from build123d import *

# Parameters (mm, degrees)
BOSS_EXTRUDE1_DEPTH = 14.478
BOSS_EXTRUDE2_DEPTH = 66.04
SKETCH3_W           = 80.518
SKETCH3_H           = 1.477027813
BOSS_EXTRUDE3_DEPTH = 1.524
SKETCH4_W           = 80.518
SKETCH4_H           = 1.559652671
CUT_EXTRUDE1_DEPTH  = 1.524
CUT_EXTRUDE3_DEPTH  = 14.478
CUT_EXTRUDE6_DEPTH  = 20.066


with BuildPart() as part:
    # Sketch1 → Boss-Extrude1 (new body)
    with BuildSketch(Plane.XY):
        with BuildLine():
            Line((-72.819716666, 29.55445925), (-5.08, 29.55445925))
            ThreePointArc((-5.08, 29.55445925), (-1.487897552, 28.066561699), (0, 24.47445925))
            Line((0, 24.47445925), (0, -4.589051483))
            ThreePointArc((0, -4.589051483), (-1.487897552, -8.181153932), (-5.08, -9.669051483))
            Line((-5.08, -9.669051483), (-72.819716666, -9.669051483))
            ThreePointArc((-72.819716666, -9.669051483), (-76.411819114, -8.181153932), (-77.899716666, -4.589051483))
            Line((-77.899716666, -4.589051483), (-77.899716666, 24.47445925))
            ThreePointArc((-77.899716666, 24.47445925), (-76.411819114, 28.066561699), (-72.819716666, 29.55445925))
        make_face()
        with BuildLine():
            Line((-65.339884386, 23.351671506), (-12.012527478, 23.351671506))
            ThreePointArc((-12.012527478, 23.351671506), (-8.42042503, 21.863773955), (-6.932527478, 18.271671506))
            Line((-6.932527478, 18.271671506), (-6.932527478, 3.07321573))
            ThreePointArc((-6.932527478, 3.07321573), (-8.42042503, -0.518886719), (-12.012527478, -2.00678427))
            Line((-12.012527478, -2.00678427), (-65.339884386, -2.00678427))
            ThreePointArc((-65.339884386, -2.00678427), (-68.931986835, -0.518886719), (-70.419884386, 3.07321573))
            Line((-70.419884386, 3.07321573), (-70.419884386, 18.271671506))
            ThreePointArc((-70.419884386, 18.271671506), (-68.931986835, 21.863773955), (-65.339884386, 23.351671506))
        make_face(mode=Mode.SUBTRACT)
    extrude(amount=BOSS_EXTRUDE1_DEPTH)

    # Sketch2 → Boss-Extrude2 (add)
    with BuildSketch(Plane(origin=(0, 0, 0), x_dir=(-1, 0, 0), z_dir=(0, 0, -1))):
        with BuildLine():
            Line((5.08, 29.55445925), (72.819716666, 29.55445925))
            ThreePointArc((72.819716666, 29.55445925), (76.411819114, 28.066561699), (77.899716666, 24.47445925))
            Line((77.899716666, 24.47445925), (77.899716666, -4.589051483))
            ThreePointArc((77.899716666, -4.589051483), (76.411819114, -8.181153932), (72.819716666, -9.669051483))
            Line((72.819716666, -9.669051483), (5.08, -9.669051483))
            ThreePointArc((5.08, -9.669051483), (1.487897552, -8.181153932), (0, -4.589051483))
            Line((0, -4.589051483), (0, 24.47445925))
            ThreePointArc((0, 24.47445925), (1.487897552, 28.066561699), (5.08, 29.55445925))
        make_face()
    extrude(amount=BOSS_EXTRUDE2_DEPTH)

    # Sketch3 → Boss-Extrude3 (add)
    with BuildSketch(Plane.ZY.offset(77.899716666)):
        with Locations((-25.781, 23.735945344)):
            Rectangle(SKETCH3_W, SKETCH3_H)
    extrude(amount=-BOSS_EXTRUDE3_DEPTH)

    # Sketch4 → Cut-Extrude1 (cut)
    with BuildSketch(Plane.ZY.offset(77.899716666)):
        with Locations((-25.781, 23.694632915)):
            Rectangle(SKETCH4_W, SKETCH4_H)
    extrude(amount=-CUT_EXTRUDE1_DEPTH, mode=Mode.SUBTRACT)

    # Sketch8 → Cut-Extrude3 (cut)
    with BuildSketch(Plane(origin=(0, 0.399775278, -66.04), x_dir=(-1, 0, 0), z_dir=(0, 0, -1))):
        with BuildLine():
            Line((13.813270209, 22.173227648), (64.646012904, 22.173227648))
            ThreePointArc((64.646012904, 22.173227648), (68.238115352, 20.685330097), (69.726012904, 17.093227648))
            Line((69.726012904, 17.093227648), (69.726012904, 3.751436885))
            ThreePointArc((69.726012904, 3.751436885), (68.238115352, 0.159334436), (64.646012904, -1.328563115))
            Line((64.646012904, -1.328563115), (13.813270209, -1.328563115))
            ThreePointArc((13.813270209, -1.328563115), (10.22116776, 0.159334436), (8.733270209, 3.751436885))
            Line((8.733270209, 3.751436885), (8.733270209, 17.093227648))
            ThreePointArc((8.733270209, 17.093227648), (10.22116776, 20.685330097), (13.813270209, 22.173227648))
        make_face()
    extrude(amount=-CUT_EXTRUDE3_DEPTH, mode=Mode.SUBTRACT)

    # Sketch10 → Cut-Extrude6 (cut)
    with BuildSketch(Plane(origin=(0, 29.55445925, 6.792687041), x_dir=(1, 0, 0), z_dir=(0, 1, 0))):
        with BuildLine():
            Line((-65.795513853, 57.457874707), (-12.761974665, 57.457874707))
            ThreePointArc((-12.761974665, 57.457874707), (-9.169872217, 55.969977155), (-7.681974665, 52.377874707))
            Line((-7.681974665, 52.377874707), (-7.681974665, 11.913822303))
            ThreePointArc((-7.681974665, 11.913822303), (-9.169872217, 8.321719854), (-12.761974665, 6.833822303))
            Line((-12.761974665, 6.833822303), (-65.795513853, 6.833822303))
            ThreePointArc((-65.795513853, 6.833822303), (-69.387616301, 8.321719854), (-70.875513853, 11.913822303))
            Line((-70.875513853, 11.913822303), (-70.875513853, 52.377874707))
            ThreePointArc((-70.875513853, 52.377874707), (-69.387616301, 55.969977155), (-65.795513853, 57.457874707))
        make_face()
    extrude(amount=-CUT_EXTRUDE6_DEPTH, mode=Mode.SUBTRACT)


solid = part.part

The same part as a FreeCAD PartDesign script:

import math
import FreeCAD as App
import Part
import Sketcher
Q = App.Units.Quantity


def add_polygon(sketch, points):
    """Adds a closed chain of lines whose ends are joined by coincident constraints."""
    first, n = sketch.GeometryCount, len(points)
    for a, b in zip(points, points[1:] + points[:1]):
        sketch.addGeometry(Part.LineSegment(App.Vector(*a, 0), App.Vector(*b, 0)), False)
    for i in range(n):
        sketch.addConstraint(Sketcher.Constraint("Coincident", first + i, 2, first + (i + 1) % n, 1))

doc = App.newDocument("Part")
params = doc.addObject("Spreadsheet::Sheet", "Params")
for row, (alias, value) in enumerate([
    ("sketch1_radius", "0.2 in"),
    ("pad1_length", "0.57 in"),
    ("sketch2_radius", "0.2 in"),
    ("pad2_length", "2.6 in"),
    ("sketch3_height", "3.17 in"),
    ("pad3_length", "0.06 in"),
    ("sketch4_height", "3.17 in"),
    ("pocket1_length", "0.06 in"),
    ("sketch5_radius", "0.2 in"),
    ("pocket2_length", "0.57 in"),
    ("sketch6_radius", "0.2 in"),
    ("pocket3_length", "0.79 in"),
], start=1):
    params.set(f"A{row}", alias)
    params.set(f"B{row}", "=" + value)
    params.setAlias(f"B{row}", alias)

body = doc.addObject("PartDesign::Body", "Body")

sketch1 = doc.addObject("Sketcher::SketchObject", "Sketch")
body.addObject(sketch1)
sketch1.AttachmentSupport = (doc.XY_Plane, [""])
sketch1.MapMode = "FlatFace"
sketch1.addGeometry(Part.LineSegment(App.Vector(-5.08, 29.554459, 0), App.Vector(-72.819717, 29.554459, 0)), False)
sketch1.addGeometry(Part.ArcOfCircle(Part.Circle(App.Vector(-72.819717, 24.474459, 0), App.Vector(0, 0, 1), 5.08), math.radians(90), math.radians(180)), False)
sketch1.addGeometry(Part.LineSegment(App.Vector(-77.899717, 24.474459, 0), App.Vector(-77.899717, -4.589051, 0)), False)
sketch1.addGeometry(Part.ArcOfCircle(Part.Circle(App.Vector(-72.819717, -4.589051, 0), App.Vector(0, 0, 1), 5.08), math.radians(180), math.radians(270)), False)
sketch1.addGeometry(Part.LineSegment(App.Vector(-72.819717, -9.669051, 0), App.Vector(-5.08, -9.669051, 0)), False)
sketch1.addGeometry(Part.ArcOfCircle(Part.Circle(App.Vector(-5.08, -4.589051, 0), App.Vector(0, 0, 1), 5.08), math.radians(-90), math.radians(0)), False)
sketch1.addGeometry(Part.LineSegment(App.Vector(0, -4.589051, 0), App.Vector(0, 24.474459, 0)), False)
sketch1.addGeometry(Part.ArcOfCircle(Part.Circle(App.Vector(-5.08, 24.474459, 0), App.Vector(0, 0, 1), 5.08), math.radians(0), math.radians(90)), False)
sketch1.addGeometry(Part.LineSegment(App.Vector(-65.339884, 23.351672, 0), App.Vector(-12.012527, 23.351672, 0)), False)
sketch1.addGeometry(Part.ArcOfCircle(Part.Circle(App.Vector(-12.012527, 18.271672, 0), App.Vector(0, 0, 1), 5.08), math.radians(0), math.radians(90)), False)
sketch1.addGeometry(Part.LineSegment(App.Vector(-6.932527, 18.271672, 0), App.Vector(-6.932527, 3.073216, 0)), False)
sketch1.addGeometry(Part.ArcOfCircle(Part.Circle(App.Vector(-12.012527, 3.073216, 0), App.Vector(0, 0, 1), 5.08), math.radians(-90), math.radians(0)), False)
sketch1.addGeometry(Part.LineSegment(App.Vector(-12.012527, -2.006784, 0), App.Vector(-65.339884, -2.006784, 0)), False)
sketch1.addGeometry(Part.ArcOfCircle(Part.Circle(App.Vector(-65.339884, 3.073216, 0), App.Vector(0, 0, 1), 5.08), math.radians(180), math.radians(270)), False)
sketch1.addGeometry(Part.LineSegment(App.Vector(-70.419884, 3.073216, 0), App.Vector(-70.419884, 18.271672, 0)), False)
sketch1.addGeometry(Part.ArcOfCircle(Part.Circle(App.Vector(-65.339884, 18.271672, 0), App.Vector(0, 0, 1), 5.08), math.radians(90), math.radians(180)), False)
sketch1.addConstraint(Sketcher.Constraint("Tangent", 0, 2, 1, 1))
sketch1.addConstraint(Sketcher.Constraint("Tangent", 1, 2, 2, 1))
sketch1.addConstraint(Sketcher.Constraint("Tangent", 2, 2, 3, 1))
sketch1.addConstraint(Sketcher.Constraint("Tangent", 3, 2, 4, 1))
sketch1.addConstraint(Sketcher.Constraint("Tangent", 4, 2, 5, 1))
sketch1.addConstraint(Sketcher.Constraint("Tangent", 5, 2, 6, 1))
sketch1.addConstraint(Sketcher.Constraint("Tangent", 6, 2, 7, 1))
sketch1.addConstraint(Sketcher.Constraint("Tangent", 7, 2, 0, 1))
sketch1.addConstraint(Sketcher.Constraint("Tangent", 8, 2, 9, 2))
sketch1.addConstraint(Sketcher.Constraint("Tangent", 9, 1, 10, 1))
sketch1.addConstraint(Sketcher.Constraint("Tangent", 10, 2, 11, 2))
sketch1.addConstraint(Sketcher.Constraint("Tangent", 11, 1, 12, 1))
sketch1.addConstraint(Sketcher.Constraint("Tangent", 12, 2, 13, 2))
sketch1.addConstraint(Sketcher.Constraint("Tangent", 13, 1, 14, 1))
sketch1.addConstraint(Sketcher.Constraint("Tangent", 14, 2, 15, 2))
sketch1.addConstraint(Sketcher.Constraint("Tangent", 15, 1, 8, 1))
sketch1.addConstraint(Sketcher.Constraint("Horizontal", 0))
sketch1.addConstraint(Sketcher.Constraint("Vertical", 2))
sketch1.addConstraint(Sketcher.Constraint("Horizontal", 4))
sketch1.addConstraint(Sketcher.Constraint("Vertical", 6))
sketch1.addConstraint(Sketcher.Constraint("Horizontal", 8))
sketch1.addConstraint(Sketcher.Constraint("Vertical", 10))
sketch1.addConstraint(Sketcher.Constraint("Horizontal", 12))
sketch1.addConstraint(Sketcher.Constraint("Vertical", 14))
sketch1.addConstraint(Sketcher.Constraint("Equal", 1, 3))
sketch1.addConstraint(Sketcher.Constraint("Equal", 3, 5))
sketch1.addConstraint(Sketcher.Constraint("Equal", 5, 7))
sketch1.addConstraint(Sketcher.Constraint("Equal", 7, 9))
sketch1.addConstraint(Sketcher.Constraint("Equal", 9, 11))
sketch1.addConstraint(Sketcher.Constraint("Equal", 11, 13))
sketch1.addConstraint(Sketcher.Constraint("Equal", 13, 15))
sketch1.addConstraint(Sketcher.Constraint("PointOnObject", 5, 2, -2))
sketch1.addConstraint(Sketcher.Constraint("Radius", 1, Q("0.2 in")))
sketch1.addConstraint(Sketcher.Constraint("DistanceY", 2, 2, 2, 1, Q("29.063511 mm")))
sketch1.addConstraint(Sketcher.Constraint("DistanceX", 0, 2, 0, 1, Q("67.739717 mm")))
sketch1.addConstraint(Sketcher.Constraint("DistanceX", 8, 1, 8, 2, Q("53.327357 mm")))
sketch1.addConstraint(Sketcher.Constraint("DistanceY", 10, 2, 10, 1, Q("15.198456 mm")))
sketch1.addConstraint(Sketcher.Constraint("DistanceY", -1, 1, 1, 3, Q("24.474459 mm")))
sketch1.addConstraint(Sketcher.Constraint("DistanceY", -1, 1, 9, 3, Q("18.271672 mm")))
sketch1.addConstraint(Sketcher.Constraint("DistanceX", 1, 3, 9, 3, Q("60.807189 mm")))
sketch1.setExpression("Constraints[32]", "Params.sketch1_radius")
pad1 = doc.addObject("PartDesign::Pad", "Pad")
body.addObject(pad1)
pad1.Profile = sketch1
pad1.setExpression("Length", "Params.pad1_length")

sketch2 = doc.addObject("Sketcher::SketchObject", "Sketch001")
body.addObject(sketch2)
sketch2.AttachmentSupport = (doc.XY_Plane, [""])
sketch2.MapMode = "FlatFace"
sketch2.addGeometry(Part.LineSegment(App.Vector(-72.819717, 29.554459, 0), App.Vector(-5.08, 29.554459, 0)), False)
sketch2.addGeometry(Part.ArcOfCircle(Part.Circle(App.Vector(-5.08, 24.474459, 0), App.Vector(0, 0, 1), 5.08), math.radians(0), math.radians(90)), False)
sketch2.addGeometry(Part.LineSegment(App.Vector(0, 24.474459, 0), App.Vector(0, -4.589051, 0)), False)
sketch2.addGeometry(Part.ArcOfCircle(Part.Circle(App.Vector(-5.08, -4.589051, 0), App.Vector(0, 0, 1), 5.08), math.radians(-90), math.radians(0)), False)
sketch2.addGeometry(Part.LineSegment(App.Vector(-5.08, -9.669051, 0), App.Vector(-72.819717, -9.669051, 0)), False)
sketch2.addGeometry(Part.ArcOfCircle(Part.Circle(App.Vector(-72.819717, -4.589051, 0), App.Vector(0, 0, 1), 5.08), math.radians(180), math.radians(270)), False)
sketch2.addGeometry(Part.LineSegment(App.Vector(-77.899717, -4.589051, 0), App.Vector(-77.899717, 24.474459, 0)), False)
sketch2.addGeometry(Part.ArcOfCircle(Part.Circle(App.Vector(-72.819717, 24.474459, 0), App.Vector(0, 0, 1), 5.08), math.radians(90), math.radians(180)), False)
sketch2.addConstraint(Sketcher.Constraint("Tangent", 0, 2, 1, 2))
sketch2.addConstraint(Sketcher.Constraint("Tangent", 1, 1, 2, 1))
sketch2.addConstraint(Sketcher.Constraint("Tangent", 2, 2, 3, 2))
sketch2.addConstraint(Sketcher.Constraint("Tangent", 3, 1, 4, 1))
sketch2.addConstraint(Sketcher.Constraint("Tangent", 4, 2, 5, 2))
sketch2.addConstraint(Sketcher.Constraint("Tangent", 5, 1, 6, 1))
sketch2.addConstraint(Sketcher.Constraint("Tangent", 6, 2, 7, 2))
sketch2.addConstraint(Sketcher.Constraint("Tangent", 7, 1, 0, 1))
sketch2.addConstraint(Sketcher.Constraint("Horizontal", 0))
sketch2.addConstraint(Sketcher.Constraint("Vertical", 2))
sketch2.addConstraint(Sketcher.Constraint("Horizontal", 4))
sketch2.addConstraint(Sketcher.Constraint("Vertical", 6))
sketch2.addConstraint(Sketcher.Constraint("Equal", 1, 3))
sketch2.addConstraint(Sketcher.Constraint("Equal", 3, 5))
sketch2.addConstraint(Sketcher.Constraint("Equal", 5, 7))
sketch2.addConstraint(Sketcher.Constraint("PointOnObject", 1, 1, -2))
sketch2.addConstraint(Sketcher.Constraint("Radius", 1, Q("0.2 in")))
sketch2.addConstraint(Sketcher.Constraint("DistanceY", 2, 2, 2, 1, Q("29.063511 mm")))
sketch2.addConstraint(Sketcher.Constraint("DistanceX", 0, 1, 0, 2, Q("67.739717 mm")))
sketch2.addConstraint(Sketcher.Constraint("DistanceY", -1, 1, 1, 3, Q("24.474459 mm")))
sketch2.setExpression("Constraints[16]", "Params.sketch2_radius")
pad2 = doc.addObject("PartDesign::Pad", "Pad001")
body.addObject(pad2)
pad2.Profile = sketch2
pad2.setExpression("Length", "Params.pad2_length")
pad2.Reversed = True

sketch3 = doc.addObject("Sketcher::SketchObject", "Sketch002")
body.addObject(sketch3)
sketch3.AttachmentSupport = (doc.YZ_Plane, [""])
sketch3.MapMode = "FlatFace"
sketch3.AttachmentOffset = App.Placement(App.Vector(0, 0, -77.899717), App.Rotation())
add_polygon(sketch3, [(24.474459, -66.04), (22.997431, -66.04), (22.997431, 14.478), (24.474459, 14.478)])
sketch3.addConstraint(Sketcher.Constraint("Horizontal", 0))
sketch3.addConstraint(Sketcher.Constraint("Vertical", 1))
sketch3.addConstraint(Sketcher.Constraint("Horizontal", 2))
sketch3.addConstraint(Sketcher.Constraint("Vertical", 3))
sketch3.addConstraint(Sketcher.Constraint("DistanceY", 1, 1, 1, 2, Q("3.17 in")))
sketch3.addConstraint(Sketcher.Constraint("DistanceY", 0, 2, -1, 1, Q("2.6 in")))
sketch3.addConstraint(Sketcher.Constraint("DistanceX", 0, 2, 0, 1, Q("1.477028 mm")))
sketch3.addConstraint(Sketcher.Constraint("DistanceX", -1, 1, 0, 2, Q("22.997431 mm")))
sketch3.setExpression("Constraints[8]", "Params.sketch3_height")
pad3 = doc.addObject("PartDesign::Pad", "Pad002")
body.addObject(pad3)
pad3.Profile = sketch3
pad3.setExpression("Length", "Params.pad3_length")

sketch4 = doc.addObject("Sketcher::SketchObject", "Sketch003")
body.addObject(sketch4)
sketch4.AttachmentSupport = (doc.YZ_Plane, [""])
sketch4.MapMode = "FlatFace"
sketch4.AttachmentOffset = App.Placement(App.Vector(0, 0, -77.899717), App.Rotation())
add_polygon(sketch4, [(24.474459, -66.04), (22.914807, -66.04), (22.914807, 14.478), (24.474459, 14.478)])
sketch4.addConstraint(Sketcher.Constraint("Horizontal", 0))
sketch4.addConstraint(Sketcher.Constraint("Vertical", 1))
sketch4.addConstraint(Sketcher.Constraint("Horizontal", 2))
sketch4.addConstraint(Sketcher.Constraint("Vertical", 3))
sketch4.addConstraint(Sketcher.Constraint("DistanceY", 1, 1, 1, 2, Q("3.17 in")))
sketch4.addConstraint(Sketcher.Constraint("DistanceY", 0, 2, -1, 1, Q("2.6 in")))
sketch4.addConstraint(Sketcher.Constraint("DistanceX", 0, 2, 0, 1, Q("1.559653 mm")))
sketch4.addConstraint(Sketcher.Constraint("DistanceX", -1, 1, 2, 2, Q("24.474459 mm")))
sketch4.setExpression("Constraints[8]", "Params.sketch4_height")
pocket1 = doc.addObject("PartDesign::Pocket", "Pocket")
body.addObject(pocket1)
pocket1.Profile = sketch4
pocket1.setExpression("Length", "Params.pocket1_length")
pocket1.Reversed = True

sketch5 = doc.addObject("Sketcher::SketchObject", "Sketch004")
body.addObject(sketch5)
sketch5.AttachmentSupport = (doc.XY_Plane, [""])
sketch5.MapMode = "FlatFace"
sketch5.AttachmentOffset = App.Placement(App.Vector(0, 0, -2.6 * 25.4), App.Rotation())
sketch5.addGeometry(Part.LineSegment(App.Vector(-64.646013, 22.573003, 0), App.Vector(-13.81327, 22.573003, 0)), False)
sketch5.addGeometry(Part.ArcOfCircle(Part.Circle(App.Vector(-13.81327, 17.493003, 0), App.Vector(0, 0, 1), 5.08), math.radians(0), math.radians(90)), False)
sketch5.addGeometry(Part.LineSegment(App.Vector(-8.73327, 17.493003, 0), App.Vector(-8.73327, 4.151212, 0)), False)
sketch5.addGeometry(Part.ArcOfCircle(Part.Circle(App.Vector(-13.81327, 4.151212, 0), App.Vector(0, 0, 1), 5.08), math.radians(-90), math.radians(0)), False)
sketch5.addGeometry(Part.LineSegment(App.Vector(-13.81327, -0.928788, 0), App.Vector(-64.646013, -0.928788, 0)), False)
sketch5.addGeometry(Part.ArcOfCircle(Part.Circle(App.Vector(-64.646013, 4.151212, 0), App.Vector(0, 0, 1), 5.08), math.radians(180), math.radians(270)), False)
sketch5.addGeometry(Part.LineSegment(App.Vector(-69.726013, 4.151212, 0), App.Vector(-69.726013, 17.493003, 0)), False)
sketch5.addGeometry(Part.ArcOfCircle(Part.Circle(App.Vector(-64.646013, 17.493003, 0), App.Vector(0, 0, 1), 5.08), math.radians(90), math.radians(180)), False)
sketch5.addConstraint(Sketcher.Constraint("Tangent", 0, 2, 1, 2))
sketch5.addConstraint(Sketcher.Constraint("Tangent", 1, 1, 2, 1))
sketch5.addConstraint(Sketcher.Constraint("Tangent", 2, 2, 3, 2))
sketch5.addConstraint(Sketcher.Constraint("Tangent", 3, 1, 4, 1))
sketch5.addConstraint(Sketcher.Constraint("Tangent", 4, 2, 5, 2))
sketch5.addConstraint(Sketcher.Constraint("Tangent", 5, 1, 6, 1))
sketch5.addConstraint(Sketcher.Constraint("Tangent", 6, 2, 7, 2))
sketch5.addConstraint(Sketcher.Constraint("Tangent", 7, 1, 0, 1))
sketch5.addConstraint(Sketcher.Constraint("Horizontal", 0))
sketch5.addConstraint(Sketcher.Constraint("Vertical", 2))
sketch5.addConstraint(Sketcher.Constraint("Horizontal", 4))
sketch5.addConstraint(Sketcher.Constraint("Vertical", 6))
sketch5.addConstraint(Sketcher.Constraint("Equal", 1, 3))
sketch5.addConstraint(Sketcher.Constraint("Equal", 3, 5))
sketch5.addConstraint(Sketcher.Constraint("Equal", 5, 7))
sketch5.addConstraint(Sketcher.Constraint("Radius", 1, Q("0.2 in")))
sketch5.addConstraint(Sketcher.Constraint("DistanceY", 2, 2, 2, 1, Q("13.341791 mm")))
sketch5.addConstraint(Sketcher.Constraint("DistanceX", 0, 1, 0, 2, Q("50.832743 mm")))
sketch5.addConstraint(Sketcher.Constraint("DistanceX", 1, 3, -1, 1, Q("13.81327 mm")))
sketch5.addConstraint(Sketcher.Constraint("DistanceY", -1, 1, 1, 3, Q("17.493003 mm")))
sketch5.setExpression("Constraints[15]", "Params.sketch5_radius")
pocket2 = doc.addObject("PartDesign::Pocket", "Pocket001")
body.addObject(pocket2)
pocket2.Profile = sketch5
pocket2.setExpression("Length", "Params.pocket2_length")
pocket2.Reversed = True

sketch6 = doc.addObject("Sketcher::SketchObject", "Sketch005")
body.addObject(sketch6)
sketch6.AttachmentSupport = (doc.XZ_Plane, [""])
sketch6.MapMode = "FlatFace"
sketch6.AttachmentOffset = App.Placement(App.Vector(0, 0, -29.554459), App.Rotation())
sketch6.addGeometry(Part.LineSegment(App.Vector(-12.761975, -50.665188, 0), App.Vector(-65.795514, -50.665188, 0)), False)
sketch6.addGeometry(Part.ArcOfCircle(Part.Circle(App.Vector(-65.795514, -45.585188, 0), App.Vector(0, 0, 1), 5.08), math.radians(-180), math.radians(-90)), False)
sketch6.addGeometry(Part.LineSegment(App.Vector(-70.875514, -45.585188, 0), App.Vector(-70.875514, -5.121135, 0)), False)
sketch6.addGeometry(Part.ArcOfCircle(Part.Circle(App.Vector(-65.795514, -5.121135, 0), App.Vector(0, 0, 1), 5.08), math.radians(90), math.radians(180)), False)
sketch6.addGeometry(Part.LineSegment(App.Vector(-65.795514, -0.041135, 0), App.Vector(-12.761975, -0.041135, 0)), False)
sketch6.addGeometry(Part.ArcOfCircle(Part.Circle(App.Vector(-12.761975, -5.121135, 0), App.Vector(0, 0, 1), 5.08), math.radians(0), math.radians(90)), False)
sketch6.addGeometry(Part.LineSegment(App.Vector(-7.681975, -5.121135, 0), App.Vector(-7.681975, -45.585188, 0)), False)
sketch6.addGeometry(Part.ArcOfCircle(Part.Circle(App.Vector(-12.761975, -45.585188, 0), App.Vector(0, 0, 1), 5.08), math.radians(-90), math.radians(0)), False)
sketch6.addConstraint(Sketcher.Constraint("Tangent", 0, 2, 1, 2))
sketch6.addConstraint(Sketcher.Constraint("Tangent", 1, 1, 2, 1))
sketch6.addConstraint(Sketcher.Constraint("Tangent", 2, 2, 3, 2))
sketch6.addConstraint(Sketcher.Constraint("Tangent", 3, 1, 4, 1))
sketch6.addConstraint(Sketcher.Constraint("Tangent", 4, 2, 5, 2))
sketch6.addConstraint(Sketcher.Constraint("Tangent", 5, 1, 6, 1))
sketch6.addConstraint(Sketcher.Constraint("Tangent", 6, 2, 7, 2))
sketch6.addConstraint(Sketcher.Constraint("Tangent", 7, 1, 0, 1))
sketch6.addConstraint(Sketcher.Constraint("Horizontal", 0))
sketch6.addConstraint(Sketcher.Constraint("Vertical", 2))
sketch6.addConstraint(Sketcher.Constraint("Horizontal", 4))
sketch6.addConstraint(Sketcher.Constraint("Vertical", 6))
sketch6.addConstraint(Sketcher.Constraint("Equal", 1, 3))
sketch6.addConstraint(Sketcher.Constraint("Equal", 3, 5))
sketch6.addConstraint(Sketcher.Constraint("Equal", 5, 7))
sketch6.addConstraint(Sketcher.Constraint("Radius", 1, Q("0.2 in")))
sketch6.addConstraint(Sketcher.Constraint("DistanceX", 0, 2, 0, 1, Q("53.033539 mm")))
sketch6.addConstraint(Sketcher.Constraint("DistanceY", 2, 1, 2, 2, Q("40.464052 mm")))
sketch6.addConstraint(Sketcher.Constraint("DistanceX", 1, 3, -1, 1, Q("65.795514 mm")))
sketch6.addConstraint(Sketcher.Constraint("DistanceY", 1, 3, -1, 1, Q("45.585188 mm")))
sketch6.setExpression("Constraints[15]", "Params.sketch6_radius")
pocket3 = doc.addObject("PartDesign::Pocket", "Pocket002")
body.addObject(pocket3)
pocket3.Profile = sketch6
pocket3.setExpression("Length", "Params.pocket3_length")
pocket3.Reversed = True

doc.recompute()
